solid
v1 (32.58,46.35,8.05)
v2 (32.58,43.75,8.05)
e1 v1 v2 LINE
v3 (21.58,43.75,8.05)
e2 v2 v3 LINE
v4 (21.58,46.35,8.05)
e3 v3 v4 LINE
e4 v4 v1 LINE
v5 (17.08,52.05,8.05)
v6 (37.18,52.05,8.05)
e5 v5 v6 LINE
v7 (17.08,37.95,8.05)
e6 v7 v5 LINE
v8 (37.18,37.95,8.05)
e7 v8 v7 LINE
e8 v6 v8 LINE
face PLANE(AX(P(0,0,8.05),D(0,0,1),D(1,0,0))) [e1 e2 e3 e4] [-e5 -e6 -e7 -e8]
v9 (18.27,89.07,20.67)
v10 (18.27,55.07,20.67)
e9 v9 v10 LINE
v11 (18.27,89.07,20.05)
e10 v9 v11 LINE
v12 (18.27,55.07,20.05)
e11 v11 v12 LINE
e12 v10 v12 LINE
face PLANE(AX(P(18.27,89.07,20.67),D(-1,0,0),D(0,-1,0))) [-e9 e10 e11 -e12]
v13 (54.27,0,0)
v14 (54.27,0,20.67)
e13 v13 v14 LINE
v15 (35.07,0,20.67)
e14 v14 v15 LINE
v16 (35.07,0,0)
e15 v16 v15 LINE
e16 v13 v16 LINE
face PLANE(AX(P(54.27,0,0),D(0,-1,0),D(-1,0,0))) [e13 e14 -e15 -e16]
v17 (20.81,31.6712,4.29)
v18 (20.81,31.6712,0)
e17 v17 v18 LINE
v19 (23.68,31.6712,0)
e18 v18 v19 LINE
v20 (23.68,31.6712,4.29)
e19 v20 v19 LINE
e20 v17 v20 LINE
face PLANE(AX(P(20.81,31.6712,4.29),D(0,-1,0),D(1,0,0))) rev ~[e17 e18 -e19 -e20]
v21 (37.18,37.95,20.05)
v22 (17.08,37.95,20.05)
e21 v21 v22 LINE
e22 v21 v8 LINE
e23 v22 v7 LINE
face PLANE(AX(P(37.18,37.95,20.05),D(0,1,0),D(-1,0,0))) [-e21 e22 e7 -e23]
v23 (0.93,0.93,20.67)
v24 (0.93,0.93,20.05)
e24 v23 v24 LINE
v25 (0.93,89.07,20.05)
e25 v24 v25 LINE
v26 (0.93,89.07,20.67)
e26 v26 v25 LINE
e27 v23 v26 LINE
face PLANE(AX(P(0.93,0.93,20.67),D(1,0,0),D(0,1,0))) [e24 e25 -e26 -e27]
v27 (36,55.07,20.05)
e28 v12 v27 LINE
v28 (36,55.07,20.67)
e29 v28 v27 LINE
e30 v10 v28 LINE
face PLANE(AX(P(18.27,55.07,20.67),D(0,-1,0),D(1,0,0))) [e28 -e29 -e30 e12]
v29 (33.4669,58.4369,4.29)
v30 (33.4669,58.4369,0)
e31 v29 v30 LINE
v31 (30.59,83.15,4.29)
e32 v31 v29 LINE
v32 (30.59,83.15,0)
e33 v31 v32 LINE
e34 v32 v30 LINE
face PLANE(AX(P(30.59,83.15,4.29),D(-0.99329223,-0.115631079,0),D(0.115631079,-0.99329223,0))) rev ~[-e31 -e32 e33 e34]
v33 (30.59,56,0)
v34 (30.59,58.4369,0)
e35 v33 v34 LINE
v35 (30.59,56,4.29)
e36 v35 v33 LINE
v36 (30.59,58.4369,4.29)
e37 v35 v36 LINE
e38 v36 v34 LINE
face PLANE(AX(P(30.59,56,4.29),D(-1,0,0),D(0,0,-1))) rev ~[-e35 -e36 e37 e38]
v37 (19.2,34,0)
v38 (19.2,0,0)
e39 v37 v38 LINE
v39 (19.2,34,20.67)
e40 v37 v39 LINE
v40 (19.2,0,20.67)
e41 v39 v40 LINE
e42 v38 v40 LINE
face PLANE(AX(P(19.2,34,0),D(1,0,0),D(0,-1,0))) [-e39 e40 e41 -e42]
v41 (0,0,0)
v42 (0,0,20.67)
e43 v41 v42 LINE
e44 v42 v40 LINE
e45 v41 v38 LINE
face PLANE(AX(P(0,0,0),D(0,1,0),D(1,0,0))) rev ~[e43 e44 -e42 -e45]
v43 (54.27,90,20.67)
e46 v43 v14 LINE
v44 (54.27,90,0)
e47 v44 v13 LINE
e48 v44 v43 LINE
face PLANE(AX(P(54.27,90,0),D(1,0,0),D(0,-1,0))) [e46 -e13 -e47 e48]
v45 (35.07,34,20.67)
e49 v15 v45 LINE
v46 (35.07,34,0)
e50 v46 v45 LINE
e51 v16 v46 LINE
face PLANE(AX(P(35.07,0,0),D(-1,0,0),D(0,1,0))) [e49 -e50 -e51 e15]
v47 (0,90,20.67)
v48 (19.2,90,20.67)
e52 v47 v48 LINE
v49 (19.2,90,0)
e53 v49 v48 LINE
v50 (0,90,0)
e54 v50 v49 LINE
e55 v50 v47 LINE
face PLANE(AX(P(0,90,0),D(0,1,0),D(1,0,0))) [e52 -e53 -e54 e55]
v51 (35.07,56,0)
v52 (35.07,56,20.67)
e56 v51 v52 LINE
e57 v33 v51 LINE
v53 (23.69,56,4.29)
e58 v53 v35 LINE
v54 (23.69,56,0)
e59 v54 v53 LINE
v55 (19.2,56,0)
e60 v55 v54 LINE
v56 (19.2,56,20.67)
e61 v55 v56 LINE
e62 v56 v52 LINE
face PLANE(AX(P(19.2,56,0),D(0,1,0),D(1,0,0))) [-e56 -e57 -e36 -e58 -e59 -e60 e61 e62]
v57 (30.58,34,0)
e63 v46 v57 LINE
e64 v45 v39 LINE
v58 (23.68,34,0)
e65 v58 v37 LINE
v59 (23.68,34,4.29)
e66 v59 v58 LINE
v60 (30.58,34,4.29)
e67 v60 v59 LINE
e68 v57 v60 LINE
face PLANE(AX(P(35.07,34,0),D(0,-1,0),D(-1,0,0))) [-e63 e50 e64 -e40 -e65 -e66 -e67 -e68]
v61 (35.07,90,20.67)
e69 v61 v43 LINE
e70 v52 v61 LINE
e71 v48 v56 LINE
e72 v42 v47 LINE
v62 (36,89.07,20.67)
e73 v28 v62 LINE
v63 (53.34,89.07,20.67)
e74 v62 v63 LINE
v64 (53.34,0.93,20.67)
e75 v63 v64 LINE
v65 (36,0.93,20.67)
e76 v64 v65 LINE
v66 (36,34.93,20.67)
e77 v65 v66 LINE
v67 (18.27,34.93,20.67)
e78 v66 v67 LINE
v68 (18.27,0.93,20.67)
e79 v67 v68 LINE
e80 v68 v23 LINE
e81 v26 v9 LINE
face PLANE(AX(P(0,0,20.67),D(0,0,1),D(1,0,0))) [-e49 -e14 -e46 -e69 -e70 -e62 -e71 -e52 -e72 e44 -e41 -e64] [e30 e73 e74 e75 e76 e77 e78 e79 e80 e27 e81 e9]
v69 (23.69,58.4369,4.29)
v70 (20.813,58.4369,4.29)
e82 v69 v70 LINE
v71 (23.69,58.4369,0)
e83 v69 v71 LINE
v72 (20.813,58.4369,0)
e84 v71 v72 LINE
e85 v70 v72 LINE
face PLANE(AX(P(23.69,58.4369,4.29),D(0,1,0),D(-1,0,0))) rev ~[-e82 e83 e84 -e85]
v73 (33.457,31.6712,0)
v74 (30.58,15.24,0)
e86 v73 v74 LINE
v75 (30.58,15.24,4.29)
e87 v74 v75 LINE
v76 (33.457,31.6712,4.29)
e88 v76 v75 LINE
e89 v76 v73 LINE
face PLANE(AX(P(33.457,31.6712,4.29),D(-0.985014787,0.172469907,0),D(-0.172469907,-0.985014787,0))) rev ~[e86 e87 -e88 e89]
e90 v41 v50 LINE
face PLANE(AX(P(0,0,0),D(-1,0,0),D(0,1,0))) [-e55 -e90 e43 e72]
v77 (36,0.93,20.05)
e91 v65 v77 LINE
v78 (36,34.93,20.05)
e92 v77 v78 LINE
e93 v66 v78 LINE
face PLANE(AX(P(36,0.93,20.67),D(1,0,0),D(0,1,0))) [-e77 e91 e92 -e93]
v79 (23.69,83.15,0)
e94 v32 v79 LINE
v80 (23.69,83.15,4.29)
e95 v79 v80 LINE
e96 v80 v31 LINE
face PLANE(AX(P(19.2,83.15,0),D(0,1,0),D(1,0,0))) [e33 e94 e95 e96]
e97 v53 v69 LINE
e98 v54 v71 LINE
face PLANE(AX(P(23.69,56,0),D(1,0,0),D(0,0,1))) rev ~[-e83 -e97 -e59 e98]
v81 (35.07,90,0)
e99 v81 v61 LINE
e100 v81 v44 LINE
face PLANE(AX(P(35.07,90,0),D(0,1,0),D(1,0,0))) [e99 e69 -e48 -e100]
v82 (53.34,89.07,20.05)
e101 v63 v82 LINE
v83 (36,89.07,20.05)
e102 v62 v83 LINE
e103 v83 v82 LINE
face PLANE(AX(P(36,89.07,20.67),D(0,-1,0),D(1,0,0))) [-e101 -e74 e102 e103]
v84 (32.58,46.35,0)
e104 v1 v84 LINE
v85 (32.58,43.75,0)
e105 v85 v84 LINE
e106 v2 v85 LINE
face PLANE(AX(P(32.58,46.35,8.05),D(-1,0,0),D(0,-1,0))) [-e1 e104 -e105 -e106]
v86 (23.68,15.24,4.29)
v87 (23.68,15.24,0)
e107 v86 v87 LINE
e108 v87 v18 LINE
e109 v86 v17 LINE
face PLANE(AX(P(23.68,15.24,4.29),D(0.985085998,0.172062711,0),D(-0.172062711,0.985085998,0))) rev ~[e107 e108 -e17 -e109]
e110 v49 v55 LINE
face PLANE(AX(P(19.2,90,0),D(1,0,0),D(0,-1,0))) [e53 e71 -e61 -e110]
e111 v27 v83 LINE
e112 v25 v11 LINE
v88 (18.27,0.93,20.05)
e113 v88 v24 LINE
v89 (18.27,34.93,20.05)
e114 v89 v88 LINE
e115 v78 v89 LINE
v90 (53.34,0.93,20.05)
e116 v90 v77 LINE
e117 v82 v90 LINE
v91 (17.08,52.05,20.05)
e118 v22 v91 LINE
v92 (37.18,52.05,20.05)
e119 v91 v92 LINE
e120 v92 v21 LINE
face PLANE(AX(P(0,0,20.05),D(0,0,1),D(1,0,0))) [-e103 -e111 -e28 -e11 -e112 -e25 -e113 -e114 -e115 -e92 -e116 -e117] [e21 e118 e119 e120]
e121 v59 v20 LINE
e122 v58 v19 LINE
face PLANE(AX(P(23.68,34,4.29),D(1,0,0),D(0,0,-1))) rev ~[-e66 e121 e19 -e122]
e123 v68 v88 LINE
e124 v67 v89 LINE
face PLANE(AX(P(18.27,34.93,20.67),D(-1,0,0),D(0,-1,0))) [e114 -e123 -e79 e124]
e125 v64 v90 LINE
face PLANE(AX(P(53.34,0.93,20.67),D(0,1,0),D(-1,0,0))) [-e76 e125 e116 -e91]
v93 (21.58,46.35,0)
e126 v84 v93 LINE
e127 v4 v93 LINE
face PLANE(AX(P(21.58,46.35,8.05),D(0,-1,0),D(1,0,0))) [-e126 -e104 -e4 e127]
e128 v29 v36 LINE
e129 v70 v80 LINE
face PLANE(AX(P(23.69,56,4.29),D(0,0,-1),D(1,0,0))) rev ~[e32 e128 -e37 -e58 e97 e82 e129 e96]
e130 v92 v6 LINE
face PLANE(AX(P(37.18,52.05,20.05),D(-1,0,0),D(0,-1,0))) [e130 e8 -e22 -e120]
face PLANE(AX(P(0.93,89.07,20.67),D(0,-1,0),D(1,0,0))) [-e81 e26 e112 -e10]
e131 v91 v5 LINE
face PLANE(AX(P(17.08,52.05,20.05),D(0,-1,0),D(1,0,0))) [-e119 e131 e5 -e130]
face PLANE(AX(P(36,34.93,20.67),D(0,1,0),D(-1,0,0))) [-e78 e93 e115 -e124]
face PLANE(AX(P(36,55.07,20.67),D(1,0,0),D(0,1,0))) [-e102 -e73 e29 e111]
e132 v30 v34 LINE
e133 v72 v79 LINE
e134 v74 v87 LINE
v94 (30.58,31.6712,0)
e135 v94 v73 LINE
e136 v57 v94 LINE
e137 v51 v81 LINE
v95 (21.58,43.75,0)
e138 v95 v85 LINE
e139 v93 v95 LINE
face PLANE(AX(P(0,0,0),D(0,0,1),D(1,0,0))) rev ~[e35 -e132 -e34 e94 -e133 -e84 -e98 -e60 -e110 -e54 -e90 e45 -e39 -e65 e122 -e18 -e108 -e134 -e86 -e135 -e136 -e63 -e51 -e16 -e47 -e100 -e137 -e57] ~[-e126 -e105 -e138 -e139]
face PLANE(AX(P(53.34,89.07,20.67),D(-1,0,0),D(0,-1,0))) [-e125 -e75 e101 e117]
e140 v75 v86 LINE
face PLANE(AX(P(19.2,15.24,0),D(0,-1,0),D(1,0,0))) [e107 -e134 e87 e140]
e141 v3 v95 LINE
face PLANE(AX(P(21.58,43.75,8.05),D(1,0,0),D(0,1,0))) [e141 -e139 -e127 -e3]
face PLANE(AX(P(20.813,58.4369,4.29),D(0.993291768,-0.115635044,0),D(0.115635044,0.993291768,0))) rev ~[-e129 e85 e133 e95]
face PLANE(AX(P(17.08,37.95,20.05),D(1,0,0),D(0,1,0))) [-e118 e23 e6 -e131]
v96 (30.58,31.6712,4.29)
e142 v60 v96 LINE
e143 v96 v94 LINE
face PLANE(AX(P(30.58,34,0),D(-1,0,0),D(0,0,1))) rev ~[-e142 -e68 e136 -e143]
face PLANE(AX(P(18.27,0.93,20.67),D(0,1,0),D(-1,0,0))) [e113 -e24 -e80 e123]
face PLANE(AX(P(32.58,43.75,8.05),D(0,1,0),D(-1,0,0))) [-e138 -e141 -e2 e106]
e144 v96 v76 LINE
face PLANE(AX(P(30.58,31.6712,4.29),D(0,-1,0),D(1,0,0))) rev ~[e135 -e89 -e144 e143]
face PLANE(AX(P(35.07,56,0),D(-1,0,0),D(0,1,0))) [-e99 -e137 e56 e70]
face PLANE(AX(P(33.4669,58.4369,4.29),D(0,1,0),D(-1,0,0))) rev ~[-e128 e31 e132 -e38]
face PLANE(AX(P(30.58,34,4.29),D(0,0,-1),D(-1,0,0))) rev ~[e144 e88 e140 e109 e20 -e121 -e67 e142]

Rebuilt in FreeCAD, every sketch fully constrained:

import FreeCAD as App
import Part
import Sketcher

V = App.Vector


def add_polygon(sketch, points):
    """Adds a closed chain of lines whose ends are joined by coincident constraints."""
    first, n = sketch.GeometryCount, len(points)
    for a, b in zip(points, points[1:] + points[:1]):
        sketch.addGeometry(Part.LineSegment(App.Vector(*a, 0), App.Vector(*b, 0)), False)
    for i in range(n):
        sketch.addConstraint(Sketcher.Constraint("Coincident", first + i, 2, first + (i + 1) % n, 1))

doc = App.newDocument("Part")
body = doc.addObject("PartDesign::Body", "Body")

sketch1 = body.newObject("Sketcher::SketchObject", "Sketch")
sketch1.AttachmentSupport = (doc.getObject("XY_Plane"), [""])
sketch1.MapMode = "FlatFace"
add_polygon(sketch1, [(0, 90), (0, 0), (19, 0), (19, 34), (35, 34), (35, 0), (54, 0), (54, 90), (35, 90), (35, 56), (19, 56), (19, 90)])
sketch1.addConstraint(Sketcher.Constraint("Vertical", 0))
sketch1.addConstraint(Sketcher.Constraint("Horizontal", 1))
sketch1.addConstraint(Sketcher.Constraint("Vertical", 2))
sketch1.addConstraint(Sketcher.Constraint("Horizontal", 3))
sketch1.addConstraint(Sketcher.Constraint("Vertical", 4))
sketch1.addConstraint(Sketcher.Constraint("Horizontal", 5))
sketch1.addConstraint(Sketcher.Constraint("Vertical", 6))
sketch1.addConstraint(Sketcher.Constraint("Horizontal", 7))
sketch1.addConstraint(Sketcher.Constraint("Vertical", 8))
sketch1.addConstraint(Sketcher.Constraint("Horizontal", 9))
sketch1.addConstraint(Sketcher.Constraint("Vertical", 10))
sketch1.addConstraint(Sketcher.Constraint("Horizontal", 11))
sketch1.addConstraint(Sketcher.Constraint("Coincident", 0, 2, -1, 1))
sketch1.addConstraint(Sketcher.Constraint("PointOnObject", 4, 2, -1))
sketch1.addConstraint(Sketcher.Constraint("Horizontal", 7, 2, 10, 2))
sketch1.addConstraint(Sketcher.Constraint("Vertical", 4, 2, 7, 2))
sketch1.addConstraint(Sketcher.Constraint("Vertical", 2, 2, 9, 2))
sketch1.addConstraint(Sketcher.Constraint("Equal", 1, 5))
sketch1.addConstraint(Sketcher.Constraint("Equal", 4, 8))
sketch1.addConstraint(Sketcher.Constraint("DistanceY", 0, 2, 0, 1, 90.0))
sketch1.addConstraint(Sketcher.Constraint("DistanceY", 2, 1, 2, 2, 34.0))
sketch1.addConstraint(Sketcher.Constraint("DistanceX", 1, 1, 1, 2, 19.2))
sketch1.addConstraint(Sketcher.Constraint("DistanceX", 3, 1, 3, 2, 15.87))
pad1 = body.newObject("PartDesign::Pad", "Pad")
pad1.Profile = sketch1
pad1.Length = 20.67

sketch2 = body.newObject("Sketcher::SketchObject", "Sketch001")
sketch2.AttachmentSupport = (doc.getObject("XZ_Plane"), [""])
sketch2.MapMode = "FlatFace"
sketch2.AttachmentOffset = App.Placement(V(0, 0, -56), App.Rotation())
add_polygon(sketch2, [(30.6, 4.3), (30.6, 0), (23.7, 0), (23.7, 4.3)])
sketch2.addConstraint(Sketcher.Constraint("Vertical", 0))
sketch2.addConstraint(Sketcher.Constraint("Horizontal", 1))
sketch2.addConstraint(Sketcher.Constraint("Vertical", 2))
sketch2.addConstraint(Sketcher.Constraint("Horizontal", 3))
sketch2.addConstraint(Sketcher.Constraint("PointOnObject", 0, 2, -1))
sketch2.addConstraint(Sketcher.Constraint("DistanceX", 1, 2, 1, 1, 6.9))
sketch2.addConstraint(Sketcher.Constraint("DistanceY", 0, 2, 0, 1, 4.29))
sketch2.addConstraint(Sketcher.Constraint("DistanceX", -1, 1, 0, 2, 30.59))
pad2 = body.newObject("PartDesign::Pad", "Pad001")
pad2.Profile = sketch2
pad2.Length = 27.15
pad2.Reversed = True

sketch3 = body.newObject("Sketcher::SketchObject", "Sketch002")
sketch3.AttachmentSupport = (doc.getObject("XY_Plane"), [""])
sketch3.MapMode = "FlatFace"
sketch3.AttachmentOffset = App.Placement(V(0, 0, 4.29), App.Rotation())
add_polygon(sketch3, [(23.7, 56), (30.6, 56), (30.6, 58.4), (33.5, 58.4), (30.6, 83.2), (23.7, 83.2), (20.8, 58.4), (23.7, 58.4)])
sketch3.addConstraint(Sketcher.Constraint("Horizontal", 0))
sketch3.addConstraint(Sketcher.Constraint("Vertical", 1))
sketch3.addConstraint(Sketcher.Constraint("Horizontal", 2))
sketch3.addConstraint(Sketcher.Constraint("Horizontal", 4))
sketch3.addConstraint(Sketcher.Constraint("Horizontal", 6))
sketch3.addConstraint(Sketcher.Constraint("Vertical", 7))
sketch3.addConstraint(Sketcher.Constraint("Horizontal", 2, 2, 5, 2))
sketch3.addConstraint(Sketcher.Constraint("Vertical", 1, 2, 3, 2))
sketch3.addConstraint(Sketcher.Constraint("Vertical", 4, 2, 6, 2))
sketch3.addConstraint(Sketcher.Constraint("Equal", 2, 6))
sketch3.addConstraint(Sketcher.Constraint("Distance", 3, 24.88))
sketch3.addConstraint(Sketcher.Constraint("DistanceX", 2, 1, 2, 2, 2.877))
sketch3.addConstraint(Sketcher.Constraint("DistanceX", 0, 1, 0, 2, 6.9))
sketch3.addConstraint(Sketcher.Constraint("DistanceY", -1, 1, 0, 2, 56.0))
sketch3.addConstraint(Sketcher.Constraint("DistanceY", 1, 1, 1, 2, 2.437))
sketch3.addConstraint(Sketcher.Constraint("DistanceX", -1, 1, 0, 2, 30.59))
pad3 = body.newObject("PartDesign::Pad", "Pad002")
pad3.Profile = sketch3
pad3.Length = 4.29
pad3.Reversed = True

sketch4 = body.newObject("Sketcher::SketchObject", "Sketch003")
sketch4.AttachmentSupport = (doc.getObject("XZ_Plane"), [""])
sketch4.MapMode = "FlatFace"
sketch4.AttachmentOffset = App.Placement(V(0, 0, -34), App.Rotation())
add_polygon(sketch4, [(23.7, 4.3), (23.7, 0), (30.6, 0), (30.6, 4.3)])
sketch4.addConstraint(Sketcher.Constraint("Vertical", 0))
sketch4.addConstraint(Sketcher.Constraint("Horizontal", 1))
sketch4.addConstraint(Sketcher.Constraint("Vertical", 2))
sketch4.addConstraint(Sketcher.Constraint("Horizontal", 3))
sketch4.addConstraint(Sketcher.Constraint("PointOnObject", 0, 2, -1))
sketch4.addConstraint(Sketcher.Constraint("DistanceX", 1, 1, 1, 2, 6.9))
sketch4.addConstraint(Sketcher.Constraint("DistanceY", 0, 2, 0, 1, 4.29))
sketch4.addConstraint(Sketcher.Constraint("DistanceX", -1, 1, 0, 2, 23.68))
pad4 = body.newObject("PartDesign::Pad", "Pad003")
pad4.Profile = sketch4
pad4.Length = 18.76

sketch5 = body.newObject("Sketcher::SketchObject", "Sketch004")
sketch5.AttachmentSupport = (doc.getObject("XY_Plane"), [""])
sketch5.MapMode = "FlatFace"
sketch5.AttachmentOffset = App.Placement(V(0, 0, 4.29), App.Rotation())
add_polygon(sketch5, [(30.6, 34), (23.7, 34), (23.7, 31.7), (20.8, 31.7), (23.7, 15.2), (30.6, 15.2), (33.5, 31.7), (30.6, 31.7)])
sketch5.addConstraint(Sketcher.Constraint("Horizontal", 0))
sketch5.addConstraint(Sketcher.Constraint("Vertical", 1))
sketch5.addConstraint(Sketcher.Constraint("Horizontal", 2))
sketch5.addConstraint(Sketcher.Constraint("Horizontal", 4))
sketch5.addConstraint(Sketcher.Constraint("Horizontal", 6))
sketch5.addConstraint(Sketcher.Constraint("Vertical", 7))
sketch5.addConstraint(Sketcher.Constraint("Horizontal", 2, 2, 5, 2))
sketch5.addConstraint(Sketcher.Constraint("Vertical", 1, 2, 3, 2))
sketch5.addConstraint(Sketcher.Constraint("Vertical", 4, 2, 6, 2))
sketch5.addConstraint(Sketcher.Constraint("Distance", 3, 16.68))
sketch5.addConstraint(Sketcher.Constraint("DistanceX", 6, 2, 6, 1, 2.877))
sketch5.addConstraint(Sketcher.Constraint("DistanceX", 0, 2, 0, 1, 6.9))
sketch5.addConstraint(Sketcher.Constraint("DistanceY", -1, 1, 0, 2, 34.0))
sketch5.addConstraint(Sketcher.Constraint("DistanceX", 2, 2, 2, 1, 2.87))
sketch5.addConstraint(Sketcher.Constraint("DistanceX", -1, 1, 0, 2, 23.68))
sketch5.addConstraint(Sketcher.Constraint("DistanceY", -1, 1, 3, 2, 15.24))
pad5 = body.newObject("PartDesign::Pad", "Pad004")
pad5.Profile = sketch5
pad5.Length = 4.29
pad5.Reversed = True

sketch6 = body.newObject("Sketcher::SketchObject", "Sketch005")
sketch6.AttachmentSupport = (doc.getObject("XY_Plane"), [""])
sketch6.MapMode = "FlatFace"
sketch6.AttachmentOffset = App.Placement(V(0, 0, 20.67), App.Rotation())
add_polygon(sketch6, [(1, 89), (1, 1), (18, 1), (18, 35), (36, 35), (36, 1), (53, 1), (53, 89), (36, 89), (36, 55), (18, 55), (18, 89)])
sketch6.addConstraint(Sketcher.Constraint("Vertical", 0))
sketch6.addConstraint(Sketcher.Constraint("Horizontal", 1))
sketch6.addConstraint(Sketcher.Constraint("Vertical", 2))
sketch6.addConstraint(Sketcher.Constraint("Horizontal", 3))
sketch6.addConstraint(Sketcher.Constraint("Vertical", 4))
sketch6.addConstraint(Sketcher.Constraint("Horizontal", 5))
sketch6.addConstraint(Sketcher.Constraint("Vertical", 6))
sketch6.addConstraint(Sketcher.Constraint("Horizontal", 7))
sketch6.addConstraint(Sketcher.Constraint("Vertical", 8))
sketch6.addConstraint(Sketcher.Constraint("Horizontal", 9))
sketch6.addConstraint(Sketcher.Constraint("Vertical", 10))
sketch6.addConstraint(Sketcher.Constraint("Horizontal", 11))
sketch6.addConstraint(Sketcher.Constraint("Horizontal", 1, 2, 4, 2))
sketch6.addConstraint(Sketcher.Constraint("Horizontal", 7, 2, 10, 2))
sketch6.addConstraint(Sketcher.Constraint("Vertical", 4, 2, 7, 2))
sketch6.addConstraint(Sketcher.Constraint("Vertical", 2, 2, 9, 2))
sketch6.addConstraint(Sketcher.Constraint("Equal", 1, 5))
sketch6.addConstraint(Sketcher.Constraint("Equal", 4, 8))
sketch6.addConstraint(Sketcher.Constraint("DistanceY", 2, 1, 2, 2, 34.0))
sketch6.addConstraint(Sketcher.Constraint("DistanceX", 1, 1, 1, 2, 17.34))
sketch6.addConstraint(Sketcher.Constraint("DistanceX", 3, 1, 3, 2, 17.73))
sketch6.addConstraint(Sketcher.Constraint("DistanceY", 0, 2, 0, 1, 88.14))
sketch6.addConstraint(Sketcher.Constraint("DistanceX", -1, 1, 0, 2, 0.93))
sketch6.addConstraint(Sketcher.Constraint("DistanceY", -1, 1, 0, 2, 0.93))
pocket1 = body.newObject("PartDesign::Pocket", "Pocket")
pocket1.Profile = sketch6
pocket1.Length = 0.62

sketch7 = body.newObject("Sketcher::SketchObject", "Sketch006")
sketch7.AttachmentSupport = (doc.getObject("XY_Plane"), [""])
sketch7.MapMode = "FlatFace"
sketch7.AttachmentOffset = App.Placement(V(0, 0, 20.05), App.Rotation())
add_polygon(sketch7, [(37, 52), (17, 52), (17, 38), (37, 38)])
sketch7.addConstraint(Sketcher.Constraint("Horizontal", 0))
sketch7.addConstraint(Sketcher.Constraint("Vertical", 1))
sketch7.addConstraint(Sketcher.Constraint("Horizontal", 2))
sketch7.addConstraint(Sketcher.Constraint("Vertical", 3))
sketch7.addConstraint(Sketcher.Constraint("DistanceX", 0, 2, 0, 1, 20.1))
sketch7.addConstraint(Sketcher.Constraint("DistanceY", 1, 2, 1, 1, 14.1))
sketch7.addConstraint(Sketcher.Constraint("DistanceX", -1, 1, 0, 2, 17.08))
sketch7.addConstraint(Sketcher.Constraint("DistanceY", -1, 1, 0, 2, 52.05))
pocket2 = body.newObject("PartDesign::Pocket", "Pocket001")
pocket2.Profile = sketch7
pocket2.Length = 12

sketch8 = body.newObject("Sketcher::SketchObject", "Sketch007")
sketch8.AttachmentSupport = (doc.getObject("XY_Plane"), [""])
sketch8.MapMode = "FlatFace"
sketch8.AttachmentOffset = App.Placement(V(0, 0, 8.05), App.Rotation())
add_polygon(sketch8, [(32.6, 46.4), (21.6, 46.4), (21.6, 43.8), (32.6, 43.8)])
sketch8.addConstraint(Sketcher.Constraint("Horizontal", 0))
sketch8.addConstraint(Sketcher.Constraint("Vertical", 1))
sketch8.addConstraint(Sketcher.Constraint("Horizontal", 2))
sketch8.addConstraint(Sketcher.Constraint("Vertical", 3))
sketch8.addConstraint(Sketcher.Constraint("DistanceX", 0, 2, 0, 1, 11.0))
sketch8.addConstraint(Sketcher.Constraint("DistanceY", 1, 2, 1, 1, 2.6))
sketch8.addConstraint(Sketcher.Constraint("DistanceX", -1, 1, 0, 2, 21.58))
sketch8.addConstraint(Sketcher.Constraint("DistanceY", -1, 1, 0, 2, 46.35))
pocket3 = body.newObject("PartDesign::Pocket", "Pocket002")
pocket3.Profile = sketch8
pocket3.Type = "UpToFirst"

doc.recompute()
